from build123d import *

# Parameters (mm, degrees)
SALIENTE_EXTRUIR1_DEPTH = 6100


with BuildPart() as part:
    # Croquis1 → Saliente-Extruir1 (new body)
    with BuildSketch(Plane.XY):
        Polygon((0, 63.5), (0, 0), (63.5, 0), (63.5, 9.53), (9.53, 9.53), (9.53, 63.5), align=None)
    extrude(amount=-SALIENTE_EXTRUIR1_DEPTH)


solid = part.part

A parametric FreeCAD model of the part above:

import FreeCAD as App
import Part
import Sketcher
Q = App.Units.Quantity


def add_polygon(sketch, points):
    """Adds a closed chain of lines whose ends are joined by coincident constraints."""
    first, n = sketch.GeometryCount, len(points)
    for a, b in zip(points, points[1:] + points[:1]):
        sketch.addGeometry(Part.LineSegment(App.Vector(*a, 0), App.Vector(*b, 0)), False)
    for i in range(n):
        sketch.addConstraint(Sketcher.Constraint("Coincident", first + i, 2, first + (i + 1) % n, 1))

doc = App.newDocument("Part")
body = doc.addObject("PartDesign::Body", "Body")

# Sketch on XY plane
sketch1 = doc.addObject("Sketcher::SketchObject", "Sketch")
body.addObject(sketch1)
sketch1.AttachmentSupport = (doc.XY_Plane, [""])
sketch1.MapMode = "FlatFace"
add_polygon(sketch1, [(0, 64), (0, 0), (64, 0), (64, 10), (10, 10), (10, 64)])  # lines 0-5
sketch1.addConstraint(Sketcher.Constraint("Vertical", 0))
sketch1.addConstraint(Sketcher.Constraint("Horizontal", 1))
sketch1.addConstraint(Sketcher.Constraint("Vertical", 2))
sketch1.addConstraint(Sketcher.Constraint("Horizontal", 3))
sketch1.addConstraint(Sketcher.Constraint("Vertical", 4))
sketch1.addConstraint(Sketcher.Constraint("Horizontal", 5))
sketch1.addConstraint(Sketcher.Constraint("Coincident", 0, 2, -1, 1))
sketch1.addConstraint(Sketcher.Constraint("Equal", 1, 0))
sketch1.addConstraint(Sketcher.Constraint("Equal", 5, 2))
sketch1.addConstraint(Sketcher.Constraint("DistanceX", 1, 1, 1, 2, Q("63.5 mm")))
sketch1.addConstraint(Sketcher.Constraint("DistanceX", 3, 2, 3, 1, Q("53.97 mm")))
pad1 = doc.addObject("PartDesign::Pad", "Pad")
body.addObject(pad1)
pad1.Profile = sketch1
pad1.Length = 6100
pad1.Reversed = True

doc.recompute()
